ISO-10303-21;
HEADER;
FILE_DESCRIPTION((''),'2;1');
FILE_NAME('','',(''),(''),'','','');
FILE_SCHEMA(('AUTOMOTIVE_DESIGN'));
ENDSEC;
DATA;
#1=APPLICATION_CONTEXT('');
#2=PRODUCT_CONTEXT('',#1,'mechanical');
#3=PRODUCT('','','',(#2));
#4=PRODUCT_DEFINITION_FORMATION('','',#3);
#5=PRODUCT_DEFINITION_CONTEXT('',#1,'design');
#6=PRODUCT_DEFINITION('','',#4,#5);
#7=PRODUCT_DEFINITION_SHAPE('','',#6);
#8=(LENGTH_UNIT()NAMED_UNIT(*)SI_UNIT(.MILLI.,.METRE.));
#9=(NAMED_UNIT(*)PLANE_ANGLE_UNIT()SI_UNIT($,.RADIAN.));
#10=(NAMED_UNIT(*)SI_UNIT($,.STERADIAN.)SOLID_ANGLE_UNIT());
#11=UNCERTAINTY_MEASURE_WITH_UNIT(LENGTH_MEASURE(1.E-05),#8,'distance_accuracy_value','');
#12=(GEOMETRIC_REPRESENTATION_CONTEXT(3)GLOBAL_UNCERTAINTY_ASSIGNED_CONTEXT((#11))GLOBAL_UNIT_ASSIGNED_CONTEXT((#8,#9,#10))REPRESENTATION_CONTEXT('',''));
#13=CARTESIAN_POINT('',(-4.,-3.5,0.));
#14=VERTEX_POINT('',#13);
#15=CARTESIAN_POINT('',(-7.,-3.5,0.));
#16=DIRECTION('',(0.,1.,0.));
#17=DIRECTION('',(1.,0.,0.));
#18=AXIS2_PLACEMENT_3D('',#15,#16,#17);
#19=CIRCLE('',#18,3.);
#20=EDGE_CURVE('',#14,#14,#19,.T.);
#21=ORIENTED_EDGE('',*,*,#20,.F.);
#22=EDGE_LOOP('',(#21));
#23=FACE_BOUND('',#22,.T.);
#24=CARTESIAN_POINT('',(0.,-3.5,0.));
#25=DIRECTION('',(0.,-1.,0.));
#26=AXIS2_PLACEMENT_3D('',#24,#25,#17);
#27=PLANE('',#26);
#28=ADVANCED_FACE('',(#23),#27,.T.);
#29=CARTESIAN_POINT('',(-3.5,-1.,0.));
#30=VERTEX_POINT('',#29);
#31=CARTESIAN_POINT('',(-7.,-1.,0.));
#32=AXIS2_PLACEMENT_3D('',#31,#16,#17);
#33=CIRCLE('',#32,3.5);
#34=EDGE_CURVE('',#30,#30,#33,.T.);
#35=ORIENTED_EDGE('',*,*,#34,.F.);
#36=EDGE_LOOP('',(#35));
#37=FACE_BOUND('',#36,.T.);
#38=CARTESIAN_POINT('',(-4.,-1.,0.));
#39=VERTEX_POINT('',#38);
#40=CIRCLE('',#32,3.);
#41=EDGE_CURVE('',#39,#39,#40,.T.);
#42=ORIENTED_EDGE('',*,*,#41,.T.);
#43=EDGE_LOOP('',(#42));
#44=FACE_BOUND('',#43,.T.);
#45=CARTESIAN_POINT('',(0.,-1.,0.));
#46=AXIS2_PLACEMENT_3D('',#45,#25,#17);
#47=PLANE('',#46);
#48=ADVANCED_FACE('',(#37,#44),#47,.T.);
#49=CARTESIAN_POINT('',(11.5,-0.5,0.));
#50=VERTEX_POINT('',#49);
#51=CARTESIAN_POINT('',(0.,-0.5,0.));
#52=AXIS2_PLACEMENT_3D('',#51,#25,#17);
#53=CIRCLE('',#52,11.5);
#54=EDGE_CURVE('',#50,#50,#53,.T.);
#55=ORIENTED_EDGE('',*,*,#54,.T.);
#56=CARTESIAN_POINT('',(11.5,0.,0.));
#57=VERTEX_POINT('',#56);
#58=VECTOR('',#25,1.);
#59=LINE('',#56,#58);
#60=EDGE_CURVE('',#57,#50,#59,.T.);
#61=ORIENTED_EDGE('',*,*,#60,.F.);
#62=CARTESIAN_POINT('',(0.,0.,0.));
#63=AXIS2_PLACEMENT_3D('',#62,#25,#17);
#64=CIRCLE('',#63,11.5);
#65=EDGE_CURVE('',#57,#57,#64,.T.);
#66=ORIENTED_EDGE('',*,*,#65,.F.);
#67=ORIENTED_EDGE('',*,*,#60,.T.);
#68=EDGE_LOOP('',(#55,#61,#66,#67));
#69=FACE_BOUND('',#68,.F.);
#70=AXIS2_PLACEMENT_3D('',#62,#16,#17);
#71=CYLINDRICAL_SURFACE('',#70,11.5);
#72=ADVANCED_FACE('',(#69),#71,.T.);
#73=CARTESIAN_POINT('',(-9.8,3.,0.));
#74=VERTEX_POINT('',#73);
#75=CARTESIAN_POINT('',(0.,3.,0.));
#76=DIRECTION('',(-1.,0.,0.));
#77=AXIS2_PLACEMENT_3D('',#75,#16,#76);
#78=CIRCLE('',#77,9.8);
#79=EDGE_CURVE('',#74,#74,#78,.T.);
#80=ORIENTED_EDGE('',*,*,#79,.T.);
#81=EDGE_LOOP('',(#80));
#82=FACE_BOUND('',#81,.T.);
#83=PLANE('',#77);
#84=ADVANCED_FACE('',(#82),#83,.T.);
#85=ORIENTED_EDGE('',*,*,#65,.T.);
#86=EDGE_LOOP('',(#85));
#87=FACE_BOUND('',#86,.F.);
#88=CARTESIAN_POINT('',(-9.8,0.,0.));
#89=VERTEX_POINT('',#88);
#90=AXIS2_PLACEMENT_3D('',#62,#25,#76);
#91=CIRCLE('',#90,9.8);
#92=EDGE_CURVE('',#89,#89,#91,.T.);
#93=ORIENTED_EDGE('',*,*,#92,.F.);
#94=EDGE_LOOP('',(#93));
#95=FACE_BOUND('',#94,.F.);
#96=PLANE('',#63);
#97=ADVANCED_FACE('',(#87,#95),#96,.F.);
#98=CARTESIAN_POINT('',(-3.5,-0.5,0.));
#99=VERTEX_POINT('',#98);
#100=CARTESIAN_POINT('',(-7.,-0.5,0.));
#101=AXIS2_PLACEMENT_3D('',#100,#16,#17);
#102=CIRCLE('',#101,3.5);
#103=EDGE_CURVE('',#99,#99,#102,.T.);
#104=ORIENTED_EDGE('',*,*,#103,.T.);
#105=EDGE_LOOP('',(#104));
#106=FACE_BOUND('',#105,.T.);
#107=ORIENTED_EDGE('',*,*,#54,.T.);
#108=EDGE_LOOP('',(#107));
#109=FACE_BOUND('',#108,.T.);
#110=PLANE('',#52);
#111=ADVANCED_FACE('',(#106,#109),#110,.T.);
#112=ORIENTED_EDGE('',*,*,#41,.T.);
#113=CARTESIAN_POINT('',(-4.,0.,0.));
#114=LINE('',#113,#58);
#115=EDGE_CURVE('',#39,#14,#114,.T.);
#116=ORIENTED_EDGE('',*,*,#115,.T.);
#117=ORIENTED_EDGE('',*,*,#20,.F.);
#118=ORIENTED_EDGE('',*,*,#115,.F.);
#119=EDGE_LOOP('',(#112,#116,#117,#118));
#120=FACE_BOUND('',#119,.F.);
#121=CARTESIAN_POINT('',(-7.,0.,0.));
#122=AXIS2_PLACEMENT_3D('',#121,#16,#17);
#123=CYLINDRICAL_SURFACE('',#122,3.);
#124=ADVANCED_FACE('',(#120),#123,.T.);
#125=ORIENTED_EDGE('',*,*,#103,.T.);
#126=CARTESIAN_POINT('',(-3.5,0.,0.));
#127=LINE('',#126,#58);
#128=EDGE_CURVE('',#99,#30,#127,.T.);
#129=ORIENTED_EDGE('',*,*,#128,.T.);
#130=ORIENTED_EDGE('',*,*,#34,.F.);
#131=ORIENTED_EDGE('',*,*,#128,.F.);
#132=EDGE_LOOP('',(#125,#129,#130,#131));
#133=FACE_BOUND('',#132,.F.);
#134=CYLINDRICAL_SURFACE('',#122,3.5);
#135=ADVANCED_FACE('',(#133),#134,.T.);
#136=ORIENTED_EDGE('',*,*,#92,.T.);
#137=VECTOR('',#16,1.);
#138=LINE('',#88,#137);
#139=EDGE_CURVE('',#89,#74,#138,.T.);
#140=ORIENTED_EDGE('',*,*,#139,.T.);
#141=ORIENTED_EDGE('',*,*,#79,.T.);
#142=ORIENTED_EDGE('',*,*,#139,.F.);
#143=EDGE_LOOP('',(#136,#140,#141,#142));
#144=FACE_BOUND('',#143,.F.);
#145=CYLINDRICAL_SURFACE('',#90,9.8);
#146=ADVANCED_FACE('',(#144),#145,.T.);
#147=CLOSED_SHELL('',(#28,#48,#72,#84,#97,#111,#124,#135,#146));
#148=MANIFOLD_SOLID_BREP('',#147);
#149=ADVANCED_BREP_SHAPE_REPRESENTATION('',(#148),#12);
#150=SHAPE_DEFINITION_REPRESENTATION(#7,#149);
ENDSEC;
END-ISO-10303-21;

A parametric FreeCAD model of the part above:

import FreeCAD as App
import Part
import Sketcher

V = App.Vector
Q = App.Units.Quantity

doc = App.newDocument("Part")
body = doc.addObject("PartDesign::Body", "Body")

sketch1 = doc.addObject("Sketcher::SketchObject", "Sketch")
body.addObject(sketch1)
sketch1.AttachmentSupport = (doc.XZ_Plane, [""])
sketch1.MapMode = "FlatFace"
sketch1.addGeometry(Part.Circle(V(0, 0, 0), V(0, 0, 1), 9.8), False)
sketch1.addConstraint([
    Sketcher.Constraint("Coincident", 0, 3, -1, 1),
    Sketcher.Constraint("Diameter", 0, Q("19.6 mm")),
])
pad1 = doc.addObject("PartDesign::Pad", "Pad")
body.addObject(pad1)
pad1.Profile = sketch1
pad1.Length = 3
pad1.Reversed = True

sketch2 = doc.addObject("Sketcher::SketchObject", "Sketch001")
body.addObject(sketch2)
sketch2.AttachmentSupport = (doc.XZ_Plane, [""])
sketch2.MapMode = "FlatFace"
sketch2.addGeometry(Part.Circle(V(-7, 0, 0), V(0, 0, 1), 3), False)
sketch2.addConstraint([
    Sketcher.Constraint("PointOnObject", 0, 3, -1),
    Sketcher.Constraint("Diameter", 0, Q("6 mm")),
    Sketcher.Constraint("DistanceX", 0, 3, -1, 1, Q("7 mm")),
])
pad2 = doc.addObject("PartDesign::Pad", "Pad001")
body.addObject(pad2)
pad2.Profile = sketch2
pad2.Length = 3.5

sketch3 = doc.addObject("Sketcher::SketchObject", "Sketch002")
body.addObject(sketch3)
sketch3.AttachmentSupport = (doc.XZ_Plane, [""])
sketch3.MapMode = "FlatFace"
sketch3.addGeometry([
    Part.Circle(V(-7, 0, 0), V(0, 0, 1), 3.5),
    Part.Circle(V(-7, 0, 0), V(0, 0, 1), 3),
], False)
sketch3.addConstraint([
    Sketcher.Constraint("Coincident", 1, 3, 0, 3),
    Sketcher.Constraint("PointOnObject", 0, 3, -1),
    Sketcher.Constraint("Diameter", 0, Q("7 mm")),
    Sketcher.Constraint("Diameter", 1, Q("6 mm")),
    Sketcher.Constraint("DistanceX", 0, 3, -1, 1, Q("7 mm")),
])
pad3 = doc.addObject("PartDesign::Pad", "Pad002")
body.addObject(pad3)
pad3.Profile = sketch3
pad3.Length = 1

sketch4 = doc.addObject("Sketcher::SketchObject", "Sketch003")
body.addObject(sketch4)
sketch4.AttachmentSupport = (doc.XZ_Plane, [""])
sketch4.MapMode = "FlatFace"
sketch4.addGeometry(Part.Circle(V(0, 0, 0), V(0, 0, 1), 11.5), False)
sketch4.addConstraint([
    Sketcher.Constraint("Coincident", 0, 3, -1, 1),
    Sketcher.Constraint("Diameter", 0, Q("23 mm")),
])
pad4 = doc.addObject("PartDesign::Pad", "Pad003")
body.addObject(pad4)
pad4.Profile = sketch4
pad4.Length = 0.5

doc.recompute()
